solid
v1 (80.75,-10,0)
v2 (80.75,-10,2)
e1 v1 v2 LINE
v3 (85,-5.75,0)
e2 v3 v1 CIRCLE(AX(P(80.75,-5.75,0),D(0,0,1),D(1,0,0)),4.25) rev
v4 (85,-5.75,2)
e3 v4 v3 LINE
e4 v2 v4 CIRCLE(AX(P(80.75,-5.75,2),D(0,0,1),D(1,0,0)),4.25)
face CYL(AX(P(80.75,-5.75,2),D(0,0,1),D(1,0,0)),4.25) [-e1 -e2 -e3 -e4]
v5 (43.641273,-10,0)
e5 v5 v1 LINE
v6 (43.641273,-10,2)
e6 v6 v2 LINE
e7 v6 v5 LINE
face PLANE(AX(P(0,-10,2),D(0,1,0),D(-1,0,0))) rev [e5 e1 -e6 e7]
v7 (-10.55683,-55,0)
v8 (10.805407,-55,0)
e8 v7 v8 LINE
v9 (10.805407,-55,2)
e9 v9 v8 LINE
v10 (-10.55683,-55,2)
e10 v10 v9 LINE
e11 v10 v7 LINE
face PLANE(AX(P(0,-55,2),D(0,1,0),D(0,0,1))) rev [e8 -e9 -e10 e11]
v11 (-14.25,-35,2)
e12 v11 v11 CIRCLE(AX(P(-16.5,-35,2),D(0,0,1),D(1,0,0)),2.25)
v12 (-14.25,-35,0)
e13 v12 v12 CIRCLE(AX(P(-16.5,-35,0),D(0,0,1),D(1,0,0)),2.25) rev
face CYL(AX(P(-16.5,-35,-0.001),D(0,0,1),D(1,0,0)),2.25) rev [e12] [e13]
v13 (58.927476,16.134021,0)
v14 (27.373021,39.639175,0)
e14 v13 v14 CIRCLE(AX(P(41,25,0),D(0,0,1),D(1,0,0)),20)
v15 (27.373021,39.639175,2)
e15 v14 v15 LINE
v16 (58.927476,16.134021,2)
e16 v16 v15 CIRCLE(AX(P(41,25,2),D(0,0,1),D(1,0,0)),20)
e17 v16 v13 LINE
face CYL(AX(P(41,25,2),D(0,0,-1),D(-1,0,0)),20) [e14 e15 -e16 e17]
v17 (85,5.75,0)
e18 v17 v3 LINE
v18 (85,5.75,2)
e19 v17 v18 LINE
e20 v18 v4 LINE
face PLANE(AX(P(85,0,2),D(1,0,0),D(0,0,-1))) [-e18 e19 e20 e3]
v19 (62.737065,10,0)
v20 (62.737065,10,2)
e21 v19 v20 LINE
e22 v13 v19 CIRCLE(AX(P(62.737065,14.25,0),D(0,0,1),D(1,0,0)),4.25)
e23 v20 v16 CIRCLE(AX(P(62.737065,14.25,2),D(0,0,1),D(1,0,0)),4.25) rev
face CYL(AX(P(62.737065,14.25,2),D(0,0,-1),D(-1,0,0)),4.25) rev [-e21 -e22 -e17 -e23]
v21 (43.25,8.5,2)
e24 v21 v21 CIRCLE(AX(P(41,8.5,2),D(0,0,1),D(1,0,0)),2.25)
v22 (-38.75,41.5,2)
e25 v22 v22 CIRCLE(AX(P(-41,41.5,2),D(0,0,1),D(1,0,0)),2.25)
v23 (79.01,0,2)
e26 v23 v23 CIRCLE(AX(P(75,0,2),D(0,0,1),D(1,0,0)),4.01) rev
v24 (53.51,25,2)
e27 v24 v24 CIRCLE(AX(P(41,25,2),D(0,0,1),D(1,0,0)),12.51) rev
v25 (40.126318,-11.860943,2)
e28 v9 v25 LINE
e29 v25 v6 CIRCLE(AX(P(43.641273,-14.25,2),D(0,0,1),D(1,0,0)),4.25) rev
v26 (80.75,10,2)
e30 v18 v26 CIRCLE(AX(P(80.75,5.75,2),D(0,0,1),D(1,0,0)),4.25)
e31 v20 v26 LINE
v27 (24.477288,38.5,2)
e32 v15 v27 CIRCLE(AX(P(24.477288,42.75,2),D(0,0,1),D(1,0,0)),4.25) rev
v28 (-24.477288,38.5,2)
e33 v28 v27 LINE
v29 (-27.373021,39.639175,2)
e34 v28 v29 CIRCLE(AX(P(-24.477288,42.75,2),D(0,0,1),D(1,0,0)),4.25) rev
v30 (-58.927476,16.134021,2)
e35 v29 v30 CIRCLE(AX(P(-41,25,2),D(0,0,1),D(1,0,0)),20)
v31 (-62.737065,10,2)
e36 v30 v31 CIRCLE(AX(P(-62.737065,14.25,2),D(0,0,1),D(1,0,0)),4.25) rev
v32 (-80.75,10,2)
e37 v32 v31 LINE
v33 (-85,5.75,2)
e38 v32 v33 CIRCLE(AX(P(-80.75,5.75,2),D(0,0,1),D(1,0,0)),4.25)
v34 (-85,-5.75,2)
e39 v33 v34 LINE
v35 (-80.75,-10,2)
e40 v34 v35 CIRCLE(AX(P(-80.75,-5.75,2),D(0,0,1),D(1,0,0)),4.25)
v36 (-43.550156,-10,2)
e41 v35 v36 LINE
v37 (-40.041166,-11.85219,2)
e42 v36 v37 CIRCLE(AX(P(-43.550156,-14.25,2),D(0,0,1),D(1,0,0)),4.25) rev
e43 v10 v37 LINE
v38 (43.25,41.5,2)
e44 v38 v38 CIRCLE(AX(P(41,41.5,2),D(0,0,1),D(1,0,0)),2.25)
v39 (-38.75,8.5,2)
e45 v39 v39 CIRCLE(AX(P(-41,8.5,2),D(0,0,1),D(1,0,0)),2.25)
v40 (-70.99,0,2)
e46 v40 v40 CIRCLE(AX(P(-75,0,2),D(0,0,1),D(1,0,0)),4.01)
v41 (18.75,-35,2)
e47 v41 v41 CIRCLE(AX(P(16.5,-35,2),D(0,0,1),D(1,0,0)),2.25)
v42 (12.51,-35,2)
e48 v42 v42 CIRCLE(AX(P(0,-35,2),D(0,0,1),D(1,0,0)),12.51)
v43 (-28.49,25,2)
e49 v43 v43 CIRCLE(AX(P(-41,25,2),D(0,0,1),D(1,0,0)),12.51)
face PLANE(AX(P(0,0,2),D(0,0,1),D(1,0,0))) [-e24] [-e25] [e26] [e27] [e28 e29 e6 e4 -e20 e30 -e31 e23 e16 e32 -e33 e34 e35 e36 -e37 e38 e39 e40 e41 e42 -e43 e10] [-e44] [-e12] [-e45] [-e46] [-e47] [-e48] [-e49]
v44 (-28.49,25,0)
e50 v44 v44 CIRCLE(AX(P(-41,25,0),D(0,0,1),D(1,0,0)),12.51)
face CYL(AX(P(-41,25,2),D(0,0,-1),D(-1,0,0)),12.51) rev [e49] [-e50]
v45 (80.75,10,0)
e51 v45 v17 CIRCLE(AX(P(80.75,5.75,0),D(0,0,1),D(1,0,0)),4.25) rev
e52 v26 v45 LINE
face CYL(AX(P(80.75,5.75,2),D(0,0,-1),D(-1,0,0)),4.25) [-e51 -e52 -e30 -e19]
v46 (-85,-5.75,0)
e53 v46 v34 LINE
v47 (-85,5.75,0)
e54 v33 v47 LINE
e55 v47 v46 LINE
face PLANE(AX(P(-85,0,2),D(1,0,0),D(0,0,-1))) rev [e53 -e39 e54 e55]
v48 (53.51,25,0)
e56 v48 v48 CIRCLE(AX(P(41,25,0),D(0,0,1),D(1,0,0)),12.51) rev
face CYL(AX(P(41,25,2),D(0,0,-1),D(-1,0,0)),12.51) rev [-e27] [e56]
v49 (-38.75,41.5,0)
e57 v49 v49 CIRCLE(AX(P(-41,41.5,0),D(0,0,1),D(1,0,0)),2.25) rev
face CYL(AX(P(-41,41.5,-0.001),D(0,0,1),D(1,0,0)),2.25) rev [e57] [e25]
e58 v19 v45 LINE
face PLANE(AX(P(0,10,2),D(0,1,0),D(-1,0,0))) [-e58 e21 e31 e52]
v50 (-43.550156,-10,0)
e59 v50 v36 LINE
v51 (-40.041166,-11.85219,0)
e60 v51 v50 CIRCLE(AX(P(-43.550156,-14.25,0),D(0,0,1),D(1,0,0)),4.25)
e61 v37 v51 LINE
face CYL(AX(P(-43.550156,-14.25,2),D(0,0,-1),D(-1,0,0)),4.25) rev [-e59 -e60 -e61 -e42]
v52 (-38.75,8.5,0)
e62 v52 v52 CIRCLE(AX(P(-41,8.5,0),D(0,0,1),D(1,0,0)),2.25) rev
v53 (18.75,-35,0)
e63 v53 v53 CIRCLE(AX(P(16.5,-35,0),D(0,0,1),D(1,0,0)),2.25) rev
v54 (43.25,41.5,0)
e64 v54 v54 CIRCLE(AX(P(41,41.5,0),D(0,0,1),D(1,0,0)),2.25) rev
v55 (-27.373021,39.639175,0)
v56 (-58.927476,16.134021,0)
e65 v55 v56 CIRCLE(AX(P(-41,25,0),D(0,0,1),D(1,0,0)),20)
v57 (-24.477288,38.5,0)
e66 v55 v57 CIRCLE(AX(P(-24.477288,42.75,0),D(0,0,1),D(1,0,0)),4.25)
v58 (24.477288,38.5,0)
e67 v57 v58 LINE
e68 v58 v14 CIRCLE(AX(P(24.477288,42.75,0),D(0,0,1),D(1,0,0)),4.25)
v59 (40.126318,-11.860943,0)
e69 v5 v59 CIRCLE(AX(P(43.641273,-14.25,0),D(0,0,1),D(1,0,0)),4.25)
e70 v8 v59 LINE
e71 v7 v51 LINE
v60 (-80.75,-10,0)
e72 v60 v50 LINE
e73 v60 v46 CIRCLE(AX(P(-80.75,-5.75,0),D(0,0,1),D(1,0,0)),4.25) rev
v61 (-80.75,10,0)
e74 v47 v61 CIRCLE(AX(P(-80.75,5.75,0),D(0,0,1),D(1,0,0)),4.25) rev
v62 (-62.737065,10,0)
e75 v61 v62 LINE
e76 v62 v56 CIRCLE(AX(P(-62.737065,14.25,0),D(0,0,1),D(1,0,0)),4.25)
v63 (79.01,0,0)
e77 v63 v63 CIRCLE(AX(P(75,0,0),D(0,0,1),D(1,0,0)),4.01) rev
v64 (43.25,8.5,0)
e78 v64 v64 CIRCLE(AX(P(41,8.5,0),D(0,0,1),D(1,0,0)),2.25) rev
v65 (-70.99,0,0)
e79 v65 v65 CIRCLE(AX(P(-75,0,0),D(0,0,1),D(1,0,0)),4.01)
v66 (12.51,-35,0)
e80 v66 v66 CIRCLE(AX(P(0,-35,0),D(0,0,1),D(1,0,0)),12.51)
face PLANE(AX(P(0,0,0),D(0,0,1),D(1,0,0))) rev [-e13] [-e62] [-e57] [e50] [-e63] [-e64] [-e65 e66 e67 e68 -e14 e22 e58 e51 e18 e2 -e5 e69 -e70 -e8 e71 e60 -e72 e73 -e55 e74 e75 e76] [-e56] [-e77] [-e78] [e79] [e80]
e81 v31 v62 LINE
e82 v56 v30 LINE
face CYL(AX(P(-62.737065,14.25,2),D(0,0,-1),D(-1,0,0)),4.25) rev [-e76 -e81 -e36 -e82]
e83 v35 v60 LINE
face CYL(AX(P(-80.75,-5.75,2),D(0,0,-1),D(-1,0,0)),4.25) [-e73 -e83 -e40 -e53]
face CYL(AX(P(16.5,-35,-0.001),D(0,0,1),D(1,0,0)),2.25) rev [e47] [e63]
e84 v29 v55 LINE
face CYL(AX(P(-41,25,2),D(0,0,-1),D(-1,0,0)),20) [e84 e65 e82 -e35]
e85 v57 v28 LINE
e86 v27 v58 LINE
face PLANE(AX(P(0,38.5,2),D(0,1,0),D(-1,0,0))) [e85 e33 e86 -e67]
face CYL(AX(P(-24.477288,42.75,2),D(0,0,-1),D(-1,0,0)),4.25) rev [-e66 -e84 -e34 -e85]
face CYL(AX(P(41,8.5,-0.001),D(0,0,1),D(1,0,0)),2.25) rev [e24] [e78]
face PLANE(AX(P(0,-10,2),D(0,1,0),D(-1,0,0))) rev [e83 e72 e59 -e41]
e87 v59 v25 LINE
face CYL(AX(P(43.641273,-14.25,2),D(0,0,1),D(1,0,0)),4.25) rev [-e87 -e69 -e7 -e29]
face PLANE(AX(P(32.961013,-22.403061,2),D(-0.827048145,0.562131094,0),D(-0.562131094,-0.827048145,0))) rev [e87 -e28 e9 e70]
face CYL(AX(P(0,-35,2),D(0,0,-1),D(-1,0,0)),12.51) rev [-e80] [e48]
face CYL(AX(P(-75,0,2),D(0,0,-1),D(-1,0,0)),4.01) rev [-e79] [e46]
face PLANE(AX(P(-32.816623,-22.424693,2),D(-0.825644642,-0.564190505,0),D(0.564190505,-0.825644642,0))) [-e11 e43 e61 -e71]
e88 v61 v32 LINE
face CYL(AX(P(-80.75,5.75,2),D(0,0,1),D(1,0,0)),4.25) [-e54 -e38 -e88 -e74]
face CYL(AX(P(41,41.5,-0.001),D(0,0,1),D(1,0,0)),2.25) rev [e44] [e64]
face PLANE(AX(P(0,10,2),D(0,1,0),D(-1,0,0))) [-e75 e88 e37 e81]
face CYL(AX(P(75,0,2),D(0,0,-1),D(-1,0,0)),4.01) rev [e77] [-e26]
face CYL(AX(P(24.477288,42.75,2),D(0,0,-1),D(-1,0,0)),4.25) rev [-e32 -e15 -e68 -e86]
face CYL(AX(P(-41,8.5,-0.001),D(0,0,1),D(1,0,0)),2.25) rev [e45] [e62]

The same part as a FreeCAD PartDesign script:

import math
import FreeCAD as App
import Part
import Sketcher


def edges_at(feature, points):
    """Names of the edges that pass closest to the given points."""
    edges = feature.Shape.Edges
    near = lambda p: min(range(len(edges)), key=lambda i: edges[i].distToShape(Part.Vertex(*p))[0])
    return sorted({f"Edge{near(p) + 1}" for p in points})

doc = App.newDocument("Part")
body = doc.addObject("PartDesign::Body", "Body")

sketch1 = body.newObject("Sketcher::SketchObject", "Sketch")
sketch1.AttachmentSupport = (doc.getObject("XY_Plane"), [""])
sketch1.MapMode = "FlatFace"
sketch1.addGeometry([
    Part.ArcOfCircle(Part.Circle(App.Vector(-41, 25, 0), App.Vector(0, 0, 1), 20), math.radians(42.45415), math.radians(214.346097)),
    Part.LineSegment(App.Vector(-57.512893, 13.71619, 0), App.Vector(-54.973496, 10, 0)),
    Part.LineSegment(App.Vector(-54.973496, 10, 0), App.Vector(-85, 10, 0)),
    Part.LineSegment(App.Vector(-85, 10, 0), App.Vector(-85, -10, 0)),
    Part.LineSegment(App.Vector(-85, -10, 0), App.Vector(-41.30683, -10, 0)),
    Part.LineSegment(App.Vector(-41.30683, -10, 0), App.Vector(-10.55683, -55, 0)),
    Part.LineSegment(App.Vector(-10.55683, -55, 0), App.Vector(10.805407, -55, 0)),
    Part.LineSegment(App.Vector(10.805407, -55, 0), App.Vector(41.39117, -10, 0)),
    Part.LineSegment(App.Vector(41.39117, -10, 0), App.Vector(85, -10, 0)),
    Part.LineSegment(App.Vector(85, -10, 0), App.Vector(85, 10, 0)),
    Part.LineSegment(App.Vector(85, 10, 0), App.Vector(54.984843, 10, 0)),
    Part.LineSegment(App.Vector(54.984843, 10, 0), App.Vector(57.384638, 13.530753, 0)),
    Part.ArcOfCircle(Part.Circle(App.Vector(41, 25, 0), App.Vector(0, 0, 1), 20), math.radians(-34.99202), math.radians(137.54585)),
    Part.LineSegment(App.Vector(26.243645, 38.5, 0), App.Vector(-26.243645, 38.5, 0)),
    Part.Circle(App.Vector(0, -35, 0), App.Vector(0, 0, 1), 12.51),
    Part.Circle(App.Vector(-75, 0, 0), App.Vector(0, 0, 1), 4.01),
    Part.Circle(App.Vector(-41, 25, 0), App.Vector(0, 0, 1), 12.51),
    Part.Circle(App.Vector(75, 0, 0), App.Vector(0, 0, 1), 4.01),
    Part.Circle(App.Vector(41, 25, 0), App.Vector(0, 0, 1), 12.51),
], False)
sketch1.addConstraint([
    Sketcher.Constraint("Tangent", 0, 2, 1, 1),
    Sketcher.Constraint("Coincident", 1, 2, 2, 1),
    Sketcher.Constraint("Coincident", 2, 2, 3, 1),
    Sketcher.Constraint("Coincident", 3, 2, 4, 1),
    Sketcher.Constraint("Coincident", 4, 2, 5, 1),
    Sketcher.Constraint("Coincident", 5, 2, 6, 1),
    Sketcher.Constraint("Coincident", 6, 2, 7, 1),
    Sketcher.Constraint("Coincident", 7, 2, 8, 1),
    Sketcher.Constraint("Coincident", 8, 2, 9, 1),
    Sketcher.Constraint("Coincident", 9, 2, 10, 1),
    Sketcher.Constraint("Coincident", 10, 2, 11, 1),
    Sketcher.Constraint("Coincident", 11, 2, 12, 1),
    Sketcher.Constraint("Coincident", 12, 2, 13, 1),
    Sketcher.Constraint("Coincident", 13, 2, 0, 1),
    Sketcher.Constraint("Horizontal", 2),
    Sketcher.Constraint("Vertical", 3),
    Sketcher.Constraint("Horizontal", 4),
    Sketcher.Constraint("Horizontal", 6),
    Sketcher.Constraint("Horizontal", 8),
    Sketcher.Constraint("Vertical", 9),
    Sketcher.Constraint("Horizontal", 10),
    Sketcher.Constraint("Horizontal", 13),
    Sketcher.Constraint("Coincident", 16, 3, 0, 3),
    Sketcher.Constraint("Coincident", 18, 3, 12, 3),
    Sketcher.Constraint("Equal", 0, 12),
    Sketcher.Constraint("Equal", 14, 16),
    Sketcher.Constraint("Equal", 15, 17),
    Sketcher.Constraint("Equal", 16, 18),
    Sketcher.Constraint("Symmetric", 15, 3, 17, 3, -1, 1),
    Sketcher.Constraint("Symmetric", 2, 2, 8, 2, -1, 1),
    Sketcher.Constraint("Symmetric", 0, 3, 12, 3, -2),
    Sketcher.Constraint("PointOnObject", 14, 3, -2),
    Sketcher.Constraint("PointOnObject", 15, 3, -1),
    Sketcher.Constraint("Parallel", 1, 5),
    Sketcher.Constraint("Parallel", 7, 11),
    Sketcher.Constraint("Horizontal", 4, 2, 7, 2),
    Sketcher.Constraint("Horizontal", 2, 2, 9, 2),
    Sketcher.Constraint("Radius", 0, 20.0),
    Sketcher.Constraint("Diameter", 14, 25.02),
    Sketcher.Constraint("Diameter", 15, 8.02),
    Sketcher.Constraint("DistanceY", 3, 2, 3, 1, 20.0),
    Sketcher.Constraint("DistanceX", 0, 3, -1, 1, 41.0),
    Sketcher.Constraint("DistanceY", -1, 1, 0, 3, 25.0),
    Sketcher.Constraint("DistanceY", 14, 3, -1, 1, 35.0),
    Sketcher.Constraint("DistanceX", 15, 3, -1, 1, 75.0),
    Sketcher.Constraint("DistanceX", 2, 2, -1, 1, 85.0),
    Sketcher.Constraint("DistanceY", 5, 2, -1, 1, 55.0),
    Sketcher.Constraint("DistanceY", -1, 1, 12, 2, 38.5),
    Sketcher.Constraint("DistanceX", 4, 2, 5, 2, 30.75),
    Sketcher.Constraint("DistanceX", 4, 1, 4, 2, 43.69317),
    Sketcher.Constraint("DistanceX", 8, 1, 8, 2, 43.60883),
    Sketcher.Constraint("DistanceX", 6, 1, 6, 2, 21.362236),
    Sketcher.Constraint("DistanceX", 10, 2, 10, 1, 30.015157),
])
pad1 = body.newObject("PartDesign::Pad", "Pad")
pad1.Profile = sketch1
pad1.Length = 2
doc.recompute()

fillet = body.newObject("PartDesign::Fillet", "Fillet")
fillet.Base = (pad1, edges_at(pad1, [
    (-85, -10, 1),
    (-85, 10, 1),
    (85, -10, 1),
    (85, 10, 1),
    (54.985, 10, 1),
    (-54.973, 10, 1),
    (41.391, -10, 1),
    (-41.307, -10, 1),
    (26.244, 38.5, 1),
    (-26.244, 38.5, 1),
]))
fillet.Radius = 4.25

sketch2 = body.newObject("Sketcher::SketchObject", "Sketch001")
sketch2.AttachmentSupport = (doc.getObject("XY_Plane"), [""])
sketch2.MapMode = "FlatFace"
sketch2.AttachmentOffset = App.Placement(App.Vector(0, 0, 2), App.Rotation())
sketch2.addGeometry(Part.Circle(App.Vector(-41, 41.5, 0), App.Vector(0, 0, 1), 2.25), False)
sketch2.addConstraint([
    Sketcher.Constraint("Diameter", 0, 4.5),
    Sketcher.Constraint("DistanceX", 0, 3, -1, 1, 41.0),
    Sketcher.Constraint("DistanceY", -1, 1, 0, 3, 41.5),
])
pocket1 = body.newObject("PartDesign::Pocket", "Pocket")
pocket1.Profile = sketch2
pocket1.Type = "UpToFirst"

sketch3 = body.newObject("Sketcher::SketchObject", "Sketch002")
sketch3.AttachmentSupport = (doc.getObject("XY_Plane"), [""])
sketch3.MapMode = "FlatFace"
sketch3.AttachmentOffset = App.Placement(App.Vector(0, 0, 2), App.Rotation())
sketch3.addGeometry(Part.Circle(App.Vector(-41, 8.5, 0), App.Vector(0, 0, 1), 2.25), False)
sketch3.addConstraint([
    Sketcher.Constraint("Diameter", 0, 4.5),
    Sketcher.Constraint("DistanceX", 0, 3, -1, 1, 41.0),
    Sketcher.Constraint("DistanceY", -1, 1, 0, 3, 8.5),
])
pocket2 = body.newObject("PartDesign::Pocket", "Pocket001")
pocket2.Profile = sketch3
pocket2.Type = "UpToFirst"

sketch4 = body.newObject("Sketcher::SketchObject", "Sketch003")
sketch4.AttachmentSupport = (doc.getObject("XY_Plane"), [""])
sketch4.MapMode = "FlatFace"
sketch4.AttachmentOffset = App.Placement(App.Vector(0, 0, 2), App.Rotation())
sketch4.addGeometry(Part.Circle(App.Vector(-16.5, -35, 0), App.Vector(0, 0, 1), 2.25), False)
sketch4.addConstraint([
    Sketcher.Constraint("Diameter", 0, 4.5),
    Sketcher.Constraint("DistanceY", 0, 3, -1, 1, 35.0),
    Sketcher.Constraint("DistanceX", 0, 3, -1, 1, 16.5),
])
pocket3 = body.newObject("PartDesign::Pocket", "Pocket002")
pocket3.Profile = sketch4
pocket3.Type = "UpToFirst"

sketch5 = body.newObject("Sketcher::SketchObject", "Sketch004")
sketch5.AttachmentSupport = (doc.getObject("XY_Plane"), [""])
sketch5.MapMode = "FlatFace"
sketch5.AttachmentOffset = App.Placement(App.Vector(0, 0, 2), App.Rotation())
sketch5.addGeometry(Part.Circle(App.Vector(16.5, -35, 0), App.Vector(0, 0, 1), 2.25), False)
sketch5.addConstraint([
    Sketcher.Constraint("Diameter", 0, 4.5),
    Sketcher.Constraint("DistanceY", 0, 3, -1, 1, 35.0),
    Sketcher.Constraint("DistanceX", -1, 1, 0, 3, 16.5),
])
pocket4 = body.newObject("PartDesign::Pocket", "Pocket003")
pocket4.Profile = sketch5
pocket4.Type = "UpToFirst"

sketch6 = body.newObject("Sketcher::SketchObject", "Sketch005")
sketch6.AttachmentSupport = (doc.getObject("XY_Plane"), [""])
sketch6.MapMode = "FlatFace"
sketch6.AttachmentOffset = App.Placement(App.Vector(0, 0, 2), App.Rotation())
sketch6.addGeometry(Part.Circle(App.Vector(41, 8.5, 0), App.Vector(0, 0, 1), 2.25), False)
sketch6.addConstraint([
    Sketcher.Constraint("Diameter", 0, 4.5),
    Sketcher.Constraint("DistanceX", -1, 1, 0, 3, 41.0),
    Sketcher.Constraint("DistanceY", -1, 1, 0, 3, 8.5),
])
pocket5 = body.newObject("PartDesign::Pocket", "Pocket004")
pocket5.Profile = sketch6
pocket5.Type = "UpToFirst"

sketch7 = body.newObject("Sketcher::SketchObject", "Sketch006")
sketch7.AttachmentSupport = (doc.getObject("XY_Plane"), [""])
sketch7.MapMode = "FlatFace"
sketch7.AttachmentOffset = App.Placement(App.Vector(0, 0, 2), App.Rotation())
sketch7.addGeometry(Part.Circle(App.Vector(41, 41.5, 0), App.Vector(0, 0, 1), 2.25), False)
sketch7.addConstraint([
    Sketcher.Constraint("Diameter", 0, 4.5),
    Sketcher.Constraint("DistanceX", -1, 1, 0, 3, 41.0),
    Sketcher.Constraint("DistanceY", -1, 1, 0, 3, 41.5),
])
pocket6 = body.newObject("PartDesign::Pocket", "Pocket005")
pocket6.Profile = sketch7
pocket6.Type = "UpToFirst"

doc.recompute()
